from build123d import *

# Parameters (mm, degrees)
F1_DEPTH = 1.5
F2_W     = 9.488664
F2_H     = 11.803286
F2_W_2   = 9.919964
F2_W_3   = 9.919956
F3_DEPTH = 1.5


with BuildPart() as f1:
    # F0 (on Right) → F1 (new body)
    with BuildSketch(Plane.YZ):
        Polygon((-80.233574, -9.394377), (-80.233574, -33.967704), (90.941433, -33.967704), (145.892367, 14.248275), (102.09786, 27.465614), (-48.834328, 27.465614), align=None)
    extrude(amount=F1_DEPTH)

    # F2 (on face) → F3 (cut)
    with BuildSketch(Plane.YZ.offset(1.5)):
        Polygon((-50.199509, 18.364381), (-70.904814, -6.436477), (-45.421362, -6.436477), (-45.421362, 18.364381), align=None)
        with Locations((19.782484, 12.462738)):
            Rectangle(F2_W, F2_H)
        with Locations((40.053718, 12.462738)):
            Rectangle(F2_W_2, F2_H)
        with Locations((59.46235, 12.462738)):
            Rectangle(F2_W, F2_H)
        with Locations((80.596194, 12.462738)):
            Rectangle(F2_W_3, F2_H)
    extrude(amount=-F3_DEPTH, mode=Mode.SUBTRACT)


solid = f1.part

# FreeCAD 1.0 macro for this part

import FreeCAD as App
import Part
import Sketcher
Q = App.Units.Quantity

doc = App.newDocument("Part")
body = doc.addObject("PartDesign::Body", "Body")

# Sketch on YZ plane
sketch1 = doc.addObject("Sketcher::SketchObject", "Sketch")
body.addObject(sketch1)
sketch1.AttachmentSupport = (doc.YZ_Plane, [""])
sketch1.MapMode = "FlatFace"
sketch1.addGeometry([
    Part.LineSegment(App.Vector(-80, -9, 0), App.Vector(-80, -34, 0)),  # 0
    Part.LineSegment(App.Vector(-80, -34, 0), App.Vector(91, -34, 0)),  # 1
    Part.LineSegment(App.Vector(91, -34, 0), App.Vector(146, 14, 0)),  # 2
    Part.LineSegment(App.Vector(146, 14, 0), App.Vector(102, 27, 0)),  # 3
    Part.LineSegment(App.Vector(102, 27, 0), App.Vector(-49, 27, 0)),  # 4
    Part.LineSegment(App.Vector(-49, 27, 0), App.Vector(-80, -9, 0)),  # 5
], False)
sketch1.addConstraint([
    Sketcher.Constraint("Coincident", 0, 2, 1, 1),
    Sketcher.Constraint("Coincident", 1, 2, 2, 1),
    Sketcher.Constraint("Coincident", 2, 2, 3, 1),
    Sketcher.Constraint("Coincident", 3, 2, 4, 1),
    Sketcher.Constraint("Coincident", 4, 2, 5, 1),
    Sketcher.Constraint("Coincident", 5, 2, 0, 1),
    Sketcher.Constraint("Vertical", 0),
    Sketcher.Constraint("Horizontal", 1),
    Sketcher.Constraint("Horizontal", 4),
    Sketcher.Constraint("DistanceX", 4, 2, 4, 1, Q("150.932188 mm")),
    Sketcher.Constraint("DistanceX", 1, 1, 1, 2, Q("171.175007 mm")),
    Sketcher.Constraint("DistanceY", 0, 2, 0, 1, Q("24.573327 mm")),
    Sketcher.Constraint("DistanceX", -1, 1, 3, 2, Q("102.09786 mm")),
    Sketcher.Constraint("DistanceY", 1, 2, 2, 2, Q("48.215979 mm")),
    Sketcher.Constraint("DistanceX", 0, 2, 2, 2, Q("226.125941 mm")),
    Sketcher.Constraint("DistanceY", 2, 2, 3, 2, Q("13.217339 mm")),
    Sketcher.Constraint("DistanceX", 4, 2, 1, 2, Q("139.775761 mm")),
    Sketcher.Constraint("DistanceY", 0, 2, -1, 1, Q("33.967704 mm")),
])
pad1 = doc.addObject("PartDesign::Pad", "Pad")
body.addObject(pad1)
pad1.Profile = sketch1
pad1.Length = 1.5

# Sketch on YZ plane
sketch2 = doc.addObject("Sketcher::SketchObject", "Sketch001")
body.addObject(sketch2)
sketch2.AttachmentSupport = (doc.YZ_Plane, [""])
sketch2.MapMode = "FlatFace"
sketch2.AttachmentOffset = App.Placement(App.Vector(0, 0, 1.5), App.Rotation())
sketch2.addGeometry([
    Part.LineSegment(App.Vector(-50.2, 18.4, 0), App.Vector(-70.9, -6.4, 0)),  # 0
    Part.LineSegment(App.Vector(-70.9, -6.4, 0), App.Vector(-45.4, -6.4, 0)),  # 1
    Part.LineSegment(App.Vector(-45.4, -6.4, 0), App.Vector(-45.4, 18.4, 0)),  # 2
    Part.LineSegment(App.Vector(-45.4, 18.4, 0), App.Vector(-50.2, 18.4, 0)),  # 3
    Part.LineSegment(App.Vector(15, 18.4, 0), App.Vector(15, 6.6, 0)),  # 4
    Part.LineSegment(App.Vector(15, 6.6, 0), App.Vector(24.5, 6.6, 0)),  # 5
    Part.LineSegment(App.Vector(24.5, 6.6, 0), App.Vector(24.5, 18.4, 0)),  # 6
    Part.LineSegment(App.Vector(24.5, 18.4, 0), App.Vector(15, 18.4, 0)),  # 7
    Part.LineSegment(App.Vector(35.1, 18.4, 0), App.Vector(35.1, 6.6, 0)),  # 8
    Part.LineSegment(App.Vector(35.1, 6.6, 0), App.Vector(45, 6.6, 0)),  # 9
    Part.LineSegment(App.Vector(45, 6.6, 0), App.Vector(45, 18.4, 0)),  # 10
    Part.LineSegment(App.Vector(45, 18.4, 0), App.Vector(35.1, 18.4, 0)),  # 11
    Part.LineSegment(App.Vector(54.7, 18.4, 0), App.Vector(54.7, 6.6, 0)),  # 12
    Part.LineSegment(App.Vector(54.7, 6.6, 0), App.Vector(64.2, 6.6, 0)),  # 13
    Part.LineSegment(App.Vector(64.2, 6.6, 0), App.Vector(64.2, 18.4, 0)),  # 14
    Part.LineSegment(App.Vector(64.2, 18.4, 0), App.Vector(54.7, 18.4, 0)),  # 15
    Part.LineSegment(App.Vector(75.6, 18.4, 0), App.Vector(75.6, 6.6, 0)),  # 16
    Part.LineSegment(App.Vector(75.6, 6.6, 0), App.Vector(85.6, 6.6, 0)),  # 17
    Part.LineSegment(App.Vector(85.6, 6.6, 0), App.Vector(85.6, 18.4, 0)),  # 18
    Part.LineSegment(App.Vector(85.6, 18.4, 0), App.Vector(75.6, 18.4, 0)),  # 19
], False)
sketch2.addConstraint([
    Sketcher.Constraint("Coincident", 0, 2, 1, 1),
    Sketcher.Constraint("Coincident", 1, 2, 2, 1),
    Sketcher.Constraint("Coincident", 2, 2, 3, 1),
    Sketcher.Constraint("Coincident", 3, 2, 0, 1),
    Sketcher.Constraint("Coincident", 4, 2, 5, 1),
    Sketcher.Constraint("Coincident", 5, 2, 6, 1),
    Sketcher.Constraint("Coincident", 6, 2, 7, 1),
    Sketcher.Constraint("Coincident", 7, 2, 4, 1),
    Sketcher.Constraint("Coincident", 8, 2, 9, 1),
    Sketcher.Constraint("Coincident", 9, 2, 10, 1),
    Sketcher.Constraint("Coincident", 10, 2, 11, 1),
    Sketcher.Constraint("Coincident", 11, 2, 8, 1),
    Sketcher.Constraint("Coincident", 12, 2, 13, 1),
    Sketcher.Constraint("Coincident", 13, 2, 14, 1),
    Sketcher.Constraint("Coincident", 14, 2, 15, 1),
    Sketcher.Constraint("Coincident", 15, 2, 12, 1),
    Sketcher.Constraint("Coincident", 16, 2, 17, 1),
    Sketcher.Constraint("Coincident", 17, 2, 18, 1),
    Sketcher.Constraint("Coincident", 18, 2, 19, 1),
    Sketcher.Constraint("Coincident", 19, 2, 16, 1),
    Sketcher.Constraint("Horizontal", 1),
    Sketcher.Constraint("Vertical", 2),
    Sketcher.Constraint("Horizontal", 3),
    Sketcher.Constraint("Vertical", 4),
    Sketcher.Constraint("Horizontal", 5),
    Sketcher.Constraint("Vertical", 6),
    Sketcher.Constraint("Horizontal", 7),
    Sketcher.Constraint("Vertical", 8),
    Sketcher.Constraint("Horizontal", 9),
    Sketcher.Constraint("Vertical", 10),
    Sketcher.Constraint("Horizontal", 11),
    Sketcher.Constraint("Vertical", 12),
    Sketcher.Constraint("Horizontal", 13),
    Sketcher.Constraint("Vertical", 14),
    Sketcher.Constraint("Horizontal", 15),
    Sketcher.Constraint("Vertical", 16),
    Sketcher.Constraint("Horizontal", 17),
    Sketcher.Constraint("Vertical", 18),
    Sketcher.Constraint("Horizontal", 19),
    Sketcher.Constraint("Horizontal", 3, 2, 6, 2),
    Sketcher.Constraint("Horizontal", 5, 2, 8, 2),
    Sketcher.Constraint("Horizontal", 7, 2, 10, 2),
    Sketcher.Constraint("Horizontal", 9, 2, 12, 2),
    Sketcher.Constraint("Horizontal", 11, 2, 14, 2),
    Sketcher.Constraint("Horizontal", 13, 2, 16, 2),
    Sketcher.Constraint("Horizontal", 15, 2, 18, 2),
    Sketcher.Constraint("Equal", 7, 13),
    Sketcher.Constraint("DistanceX", 1, 1, 1, 2, Q("25.483452 mm")),
    Sketcher.Constraint("DistanceY", 2, 1, 2, 2, Q("24.800858 mm")),
    Sketcher.Constraint("DistanceX", -1, 1, 9, 2, Q("45.0137 mm")),
    Sketcher.Constraint("DistanceX", 12, 2, 16, 2, Q("20.918198 mm")),
    Sketcher.Constraint("DistanceX", 3, 2, 3, 1, Q("4.778147 mm")),
    Sketcher.Constraint("DistanceX", 5, 1, 5, 2, Q("9.488664 mm")),
    Sketcher.Constraint("DistanceX", 9, 1, 9, 2, Q("9.919964 mm")),
    Sketcher.Constraint("DistanceX", 17, 1, 17, 2, Q("9.919956 mm")),
    Sketcher.Constraint("DistanceY", 4, 2, 4, 1, Q("11.803286 mm")),
    Sketcher.Constraint("DistanceY", -1, 1, 2, 2, Q("18.364381 mm")),
    Sketcher.Constraint("DistanceX", 3, 2, -1, 1, Q("50.199509 mm")),
    Sketcher.Constraint("DistanceX", -1, 1, 13, 2, Q("64.206682 mm")),
    Sketcher.Constraint("DistanceX", 3, 2, 4, 2, Q("65.237661 mm")),
])
pocket1 = doc.addObject("PartDesign::Pocket", "Pocket")
body.addObject(pocket1)
pocket1.Profile = sketch2
pocket1.Length = 1.5

doc.recompute()
